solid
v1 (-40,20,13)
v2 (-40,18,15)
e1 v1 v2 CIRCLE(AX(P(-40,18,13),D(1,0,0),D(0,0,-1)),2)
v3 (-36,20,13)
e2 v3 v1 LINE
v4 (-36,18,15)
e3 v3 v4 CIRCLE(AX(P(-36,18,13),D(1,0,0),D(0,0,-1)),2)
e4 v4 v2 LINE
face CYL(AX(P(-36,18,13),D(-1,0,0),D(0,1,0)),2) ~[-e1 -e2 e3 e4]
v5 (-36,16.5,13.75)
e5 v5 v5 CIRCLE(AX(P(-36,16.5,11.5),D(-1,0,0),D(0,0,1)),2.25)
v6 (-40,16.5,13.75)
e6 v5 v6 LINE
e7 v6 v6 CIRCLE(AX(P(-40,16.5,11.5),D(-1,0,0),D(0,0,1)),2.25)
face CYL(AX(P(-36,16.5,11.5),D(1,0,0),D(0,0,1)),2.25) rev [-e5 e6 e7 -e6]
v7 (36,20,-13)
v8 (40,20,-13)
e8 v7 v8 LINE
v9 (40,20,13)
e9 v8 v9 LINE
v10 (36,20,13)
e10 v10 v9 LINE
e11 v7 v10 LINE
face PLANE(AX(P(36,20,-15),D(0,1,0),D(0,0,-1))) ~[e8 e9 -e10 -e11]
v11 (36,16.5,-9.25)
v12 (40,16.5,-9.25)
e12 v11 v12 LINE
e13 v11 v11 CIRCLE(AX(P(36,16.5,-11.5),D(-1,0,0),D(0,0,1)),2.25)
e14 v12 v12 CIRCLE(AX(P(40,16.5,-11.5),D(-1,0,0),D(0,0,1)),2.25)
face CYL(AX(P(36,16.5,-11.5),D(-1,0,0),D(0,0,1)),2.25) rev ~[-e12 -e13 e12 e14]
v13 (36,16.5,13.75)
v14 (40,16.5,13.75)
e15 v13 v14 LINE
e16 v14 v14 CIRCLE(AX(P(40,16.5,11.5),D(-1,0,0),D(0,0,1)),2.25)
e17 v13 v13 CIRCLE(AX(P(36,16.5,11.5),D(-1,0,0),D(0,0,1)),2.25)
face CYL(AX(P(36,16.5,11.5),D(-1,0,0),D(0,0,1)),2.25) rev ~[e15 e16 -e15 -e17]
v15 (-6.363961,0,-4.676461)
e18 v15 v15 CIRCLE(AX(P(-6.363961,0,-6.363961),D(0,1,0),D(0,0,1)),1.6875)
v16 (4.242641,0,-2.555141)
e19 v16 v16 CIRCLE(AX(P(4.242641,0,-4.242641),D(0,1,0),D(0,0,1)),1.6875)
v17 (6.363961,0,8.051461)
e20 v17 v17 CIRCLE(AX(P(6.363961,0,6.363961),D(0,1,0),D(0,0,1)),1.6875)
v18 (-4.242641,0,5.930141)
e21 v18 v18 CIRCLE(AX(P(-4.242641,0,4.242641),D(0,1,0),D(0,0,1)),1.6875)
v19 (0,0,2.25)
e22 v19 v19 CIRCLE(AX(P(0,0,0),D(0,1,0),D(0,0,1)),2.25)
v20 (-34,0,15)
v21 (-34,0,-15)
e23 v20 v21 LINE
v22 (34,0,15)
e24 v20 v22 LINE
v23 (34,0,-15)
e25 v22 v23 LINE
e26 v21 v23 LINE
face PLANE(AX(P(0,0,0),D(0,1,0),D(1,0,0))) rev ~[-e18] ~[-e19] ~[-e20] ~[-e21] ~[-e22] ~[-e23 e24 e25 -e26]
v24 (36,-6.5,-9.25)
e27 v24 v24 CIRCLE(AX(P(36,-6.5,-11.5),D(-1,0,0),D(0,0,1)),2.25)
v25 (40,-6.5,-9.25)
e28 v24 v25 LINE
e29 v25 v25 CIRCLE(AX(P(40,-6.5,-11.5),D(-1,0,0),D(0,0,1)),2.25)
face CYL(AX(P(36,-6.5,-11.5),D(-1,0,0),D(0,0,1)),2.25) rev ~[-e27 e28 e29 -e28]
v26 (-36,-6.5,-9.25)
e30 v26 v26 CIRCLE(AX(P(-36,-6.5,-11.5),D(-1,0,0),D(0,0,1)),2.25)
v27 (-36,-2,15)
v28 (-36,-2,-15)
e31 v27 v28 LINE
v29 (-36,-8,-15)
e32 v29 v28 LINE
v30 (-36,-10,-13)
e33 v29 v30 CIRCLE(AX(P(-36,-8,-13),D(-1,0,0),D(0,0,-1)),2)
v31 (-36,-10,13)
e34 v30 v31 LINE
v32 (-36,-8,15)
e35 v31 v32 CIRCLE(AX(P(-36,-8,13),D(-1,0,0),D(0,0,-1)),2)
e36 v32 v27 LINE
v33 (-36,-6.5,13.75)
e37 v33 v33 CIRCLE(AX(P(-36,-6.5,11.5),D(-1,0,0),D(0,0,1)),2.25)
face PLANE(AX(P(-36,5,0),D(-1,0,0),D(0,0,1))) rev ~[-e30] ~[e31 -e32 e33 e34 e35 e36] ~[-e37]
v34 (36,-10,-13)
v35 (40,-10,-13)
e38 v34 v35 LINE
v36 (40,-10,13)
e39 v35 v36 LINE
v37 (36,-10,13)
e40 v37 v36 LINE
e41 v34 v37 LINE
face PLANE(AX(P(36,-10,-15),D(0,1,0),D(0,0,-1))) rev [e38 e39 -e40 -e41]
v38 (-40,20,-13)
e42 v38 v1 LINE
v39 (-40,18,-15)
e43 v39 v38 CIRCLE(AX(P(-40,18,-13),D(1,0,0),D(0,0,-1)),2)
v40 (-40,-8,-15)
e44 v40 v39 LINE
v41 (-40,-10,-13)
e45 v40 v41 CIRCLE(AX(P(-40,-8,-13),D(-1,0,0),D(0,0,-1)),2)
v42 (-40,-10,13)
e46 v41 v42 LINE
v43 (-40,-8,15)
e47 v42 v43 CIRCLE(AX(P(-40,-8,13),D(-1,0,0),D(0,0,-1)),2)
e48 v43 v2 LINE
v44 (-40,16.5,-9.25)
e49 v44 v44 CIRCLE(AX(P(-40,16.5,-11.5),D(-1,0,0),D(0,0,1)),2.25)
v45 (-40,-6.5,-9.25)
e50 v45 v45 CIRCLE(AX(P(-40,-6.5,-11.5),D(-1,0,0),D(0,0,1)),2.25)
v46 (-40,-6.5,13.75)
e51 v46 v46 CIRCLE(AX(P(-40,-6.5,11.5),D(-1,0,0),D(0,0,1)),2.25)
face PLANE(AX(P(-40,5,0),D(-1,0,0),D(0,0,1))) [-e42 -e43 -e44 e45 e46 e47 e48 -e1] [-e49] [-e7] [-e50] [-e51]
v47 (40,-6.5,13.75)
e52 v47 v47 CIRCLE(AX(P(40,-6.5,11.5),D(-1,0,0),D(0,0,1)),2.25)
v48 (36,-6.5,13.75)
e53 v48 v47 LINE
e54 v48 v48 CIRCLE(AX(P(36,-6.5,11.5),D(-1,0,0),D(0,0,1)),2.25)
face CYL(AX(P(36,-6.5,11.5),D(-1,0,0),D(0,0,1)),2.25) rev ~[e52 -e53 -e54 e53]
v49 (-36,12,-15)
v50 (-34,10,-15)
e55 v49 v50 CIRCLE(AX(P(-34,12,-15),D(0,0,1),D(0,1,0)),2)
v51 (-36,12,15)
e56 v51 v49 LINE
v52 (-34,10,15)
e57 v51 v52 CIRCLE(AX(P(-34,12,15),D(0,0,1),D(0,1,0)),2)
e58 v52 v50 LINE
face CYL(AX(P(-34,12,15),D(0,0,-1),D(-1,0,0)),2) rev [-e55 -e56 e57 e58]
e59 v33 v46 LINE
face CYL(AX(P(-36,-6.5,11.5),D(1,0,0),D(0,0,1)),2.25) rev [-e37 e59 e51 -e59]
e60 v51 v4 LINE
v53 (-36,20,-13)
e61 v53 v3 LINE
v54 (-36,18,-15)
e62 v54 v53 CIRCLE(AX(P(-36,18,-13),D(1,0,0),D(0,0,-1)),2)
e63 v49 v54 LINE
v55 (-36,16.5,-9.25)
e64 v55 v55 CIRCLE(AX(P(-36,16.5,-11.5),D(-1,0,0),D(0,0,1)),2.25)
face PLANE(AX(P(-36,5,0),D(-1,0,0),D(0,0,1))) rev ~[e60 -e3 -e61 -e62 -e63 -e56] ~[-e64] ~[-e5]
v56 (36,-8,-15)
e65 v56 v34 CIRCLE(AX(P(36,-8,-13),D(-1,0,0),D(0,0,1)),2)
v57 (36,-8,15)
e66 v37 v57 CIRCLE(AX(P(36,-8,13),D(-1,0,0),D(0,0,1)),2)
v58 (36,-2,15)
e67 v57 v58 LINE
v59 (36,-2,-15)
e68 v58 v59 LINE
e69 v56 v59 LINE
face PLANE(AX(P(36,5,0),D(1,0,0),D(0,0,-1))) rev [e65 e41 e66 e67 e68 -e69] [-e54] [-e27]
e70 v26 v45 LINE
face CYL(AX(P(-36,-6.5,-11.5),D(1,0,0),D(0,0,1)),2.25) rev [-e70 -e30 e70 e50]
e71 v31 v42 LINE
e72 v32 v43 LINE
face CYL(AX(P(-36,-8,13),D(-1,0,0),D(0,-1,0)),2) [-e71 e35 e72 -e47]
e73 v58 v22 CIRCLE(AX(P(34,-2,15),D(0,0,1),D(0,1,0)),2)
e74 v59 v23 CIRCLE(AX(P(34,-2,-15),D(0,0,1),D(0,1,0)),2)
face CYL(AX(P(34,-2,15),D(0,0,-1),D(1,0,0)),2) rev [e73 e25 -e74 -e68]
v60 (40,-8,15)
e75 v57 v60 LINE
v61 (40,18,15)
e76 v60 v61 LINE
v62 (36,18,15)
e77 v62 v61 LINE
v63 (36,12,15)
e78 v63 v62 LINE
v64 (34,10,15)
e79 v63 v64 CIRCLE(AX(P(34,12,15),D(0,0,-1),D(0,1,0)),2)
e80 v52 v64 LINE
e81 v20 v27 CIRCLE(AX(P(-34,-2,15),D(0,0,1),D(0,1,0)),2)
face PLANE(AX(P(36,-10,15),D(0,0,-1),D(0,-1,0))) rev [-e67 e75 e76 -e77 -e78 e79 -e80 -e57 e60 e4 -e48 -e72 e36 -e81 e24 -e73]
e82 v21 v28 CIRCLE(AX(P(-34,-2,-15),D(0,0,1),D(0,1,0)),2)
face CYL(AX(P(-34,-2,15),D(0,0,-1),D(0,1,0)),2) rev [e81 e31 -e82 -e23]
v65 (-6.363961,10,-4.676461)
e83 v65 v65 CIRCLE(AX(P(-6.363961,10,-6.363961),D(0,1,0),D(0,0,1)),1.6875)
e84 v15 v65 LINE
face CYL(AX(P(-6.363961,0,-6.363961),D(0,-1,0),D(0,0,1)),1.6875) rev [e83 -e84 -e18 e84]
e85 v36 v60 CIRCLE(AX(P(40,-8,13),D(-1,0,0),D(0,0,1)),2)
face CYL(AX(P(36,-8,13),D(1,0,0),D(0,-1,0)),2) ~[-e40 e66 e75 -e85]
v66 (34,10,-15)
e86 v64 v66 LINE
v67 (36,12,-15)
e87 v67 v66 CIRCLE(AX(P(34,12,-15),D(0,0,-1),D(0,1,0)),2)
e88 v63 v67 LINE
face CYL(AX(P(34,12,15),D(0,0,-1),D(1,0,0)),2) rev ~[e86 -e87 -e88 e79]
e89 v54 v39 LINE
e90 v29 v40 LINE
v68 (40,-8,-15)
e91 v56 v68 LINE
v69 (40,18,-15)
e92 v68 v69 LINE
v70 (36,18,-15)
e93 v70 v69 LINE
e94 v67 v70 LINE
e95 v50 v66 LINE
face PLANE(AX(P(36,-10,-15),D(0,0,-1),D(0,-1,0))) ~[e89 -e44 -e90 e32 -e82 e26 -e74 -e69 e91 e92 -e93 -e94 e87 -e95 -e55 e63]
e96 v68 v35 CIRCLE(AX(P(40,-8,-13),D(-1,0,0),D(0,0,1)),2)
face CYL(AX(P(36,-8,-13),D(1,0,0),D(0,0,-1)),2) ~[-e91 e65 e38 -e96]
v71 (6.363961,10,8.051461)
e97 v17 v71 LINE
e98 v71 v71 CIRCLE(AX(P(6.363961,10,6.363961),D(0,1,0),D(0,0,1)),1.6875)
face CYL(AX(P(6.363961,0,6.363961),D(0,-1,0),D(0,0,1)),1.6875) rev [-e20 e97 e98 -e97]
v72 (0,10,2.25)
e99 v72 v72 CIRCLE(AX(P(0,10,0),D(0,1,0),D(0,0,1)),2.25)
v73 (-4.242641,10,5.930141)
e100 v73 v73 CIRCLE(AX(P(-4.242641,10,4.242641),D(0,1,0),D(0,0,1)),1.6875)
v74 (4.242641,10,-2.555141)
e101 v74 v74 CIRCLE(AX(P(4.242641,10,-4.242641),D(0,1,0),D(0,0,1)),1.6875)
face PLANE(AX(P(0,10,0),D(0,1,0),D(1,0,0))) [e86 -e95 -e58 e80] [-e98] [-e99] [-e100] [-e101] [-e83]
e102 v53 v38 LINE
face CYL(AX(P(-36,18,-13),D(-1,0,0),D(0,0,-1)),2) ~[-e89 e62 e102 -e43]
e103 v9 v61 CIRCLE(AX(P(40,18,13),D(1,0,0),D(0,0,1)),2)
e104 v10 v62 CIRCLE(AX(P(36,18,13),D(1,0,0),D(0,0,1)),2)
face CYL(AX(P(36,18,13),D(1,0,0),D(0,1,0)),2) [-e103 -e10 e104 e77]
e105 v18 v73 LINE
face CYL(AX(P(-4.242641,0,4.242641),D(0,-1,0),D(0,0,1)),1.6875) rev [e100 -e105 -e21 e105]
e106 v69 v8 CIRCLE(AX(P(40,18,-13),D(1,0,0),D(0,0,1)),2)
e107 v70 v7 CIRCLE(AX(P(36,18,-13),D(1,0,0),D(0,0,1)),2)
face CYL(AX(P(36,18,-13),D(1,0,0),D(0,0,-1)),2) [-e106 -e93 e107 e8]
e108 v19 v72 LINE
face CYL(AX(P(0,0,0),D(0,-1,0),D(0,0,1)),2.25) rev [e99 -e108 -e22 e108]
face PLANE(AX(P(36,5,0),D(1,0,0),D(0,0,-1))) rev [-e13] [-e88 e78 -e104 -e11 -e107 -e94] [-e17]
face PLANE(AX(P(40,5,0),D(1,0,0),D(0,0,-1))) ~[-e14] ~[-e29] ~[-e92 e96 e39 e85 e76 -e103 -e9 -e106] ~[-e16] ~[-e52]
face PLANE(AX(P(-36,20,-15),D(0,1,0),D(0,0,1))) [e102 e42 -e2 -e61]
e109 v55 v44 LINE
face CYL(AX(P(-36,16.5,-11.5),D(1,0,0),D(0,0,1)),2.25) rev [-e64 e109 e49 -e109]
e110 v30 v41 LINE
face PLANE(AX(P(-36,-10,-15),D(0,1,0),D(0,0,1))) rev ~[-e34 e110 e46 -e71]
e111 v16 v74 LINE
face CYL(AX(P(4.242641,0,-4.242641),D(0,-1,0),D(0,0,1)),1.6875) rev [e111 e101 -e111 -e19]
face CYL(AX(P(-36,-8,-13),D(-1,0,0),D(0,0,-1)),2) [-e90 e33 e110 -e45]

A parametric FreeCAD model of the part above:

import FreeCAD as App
import Part
import Sketcher
from FreeCAD import Vector
Q = App.Units.Quantity


def edges_at(feature, points):
    """Names of the edges that pass closest to the given points."""
    edges = feature.Shape.Edges
    near = lambda p: min(range(len(edges)), key=lambda i: edges[i].distToShape(Part.Vertex(*p))[0])
    return sorted({f"Edge{near(p) + 1}" for p in points})


def add_polygon(sketch, points):
    """Adds a closed chain of lines whose ends are joined by coincident constraints."""
    first, n = sketch.GeometryCount, len(points)
    for a, b in zip(points, points[1:] + points[:1]):
        sketch.addGeometry(Part.LineSegment(App.Vector(*a, 0), App.Vector(*b, 0)), False)
    for i in range(n):
        sketch.addConstraint(Sketcher.Constraint("Coincident", first + i, 2, first + (i + 1) % n, 1))

doc = App.newDocument("Part")
body = doc.addObject("PartDesign::Body", "Body")

# Sketch on XZ plane
sketch1 = body.newObject("Sketcher::SketchObject", "Sketch")
sketch1.AttachmentSupport = (doc.getObject("XZ_Plane"), [""])
sketch1.MapMode = "FlatFace"
add_polygon(sketch1, [(-36, -15), (-36, 15), (36, 15), (36, -15)])  # lines 0-3
sketch1.addGeometry(Part.Circle(Vector(-4.2, 4.2, 0), Vector(0, 0, 1), 1.7), False)  # 4
sketch1.addGeometry(Part.Circle(Vector(6.4, 6.4, 0), Vector(0, 0, 1), 1.7), False)  # 5
sketch1.addGeometry(Part.Circle(Vector(-6.4, -6.4, 0), Vector(0, 0, 1), 1.7), False)  # 6
sketch1.addGeometry(Part.Circle(Vector(0, 0, 0), Vector(0, 0, 1), 2.2), False)  # 7
sketch1.addGeometry(Part.Circle(Vector(4.2, -4.2, 0), Vector(0, 0, 1), 1.7), False)  # 8
sketch1.addConstraint([
    Sketcher.Constraint("Vertical", 0),
    Sketcher.Constraint("Horizontal", 1),
    Sketcher.Constraint("Vertical", 2),
    Sketcher.Constraint("Horizontal", 3),
    Sketcher.Constraint("Coincident", 7, 3, -1, 1),
    Sketcher.Constraint("Equal", 4, 5),
    Sketcher.Constraint("Equal", 5, 6),
    Sketcher.Constraint("Equal", 6, 8),
    Sketcher.Constraint("Symmetric", 5, 3, 6, 3, -1, 1),
    Sketcher.Constraint("Symmetric", 4, 3, 8, 3, -1, 1),
    Sketcher.Constraint("Symmetric", 0, 2, 2, 2, -1, 1),
    Sketcher.Constraint("Diameter", 7, Q("4.5 mm")),
    Sketcher.Constraint("DistanceX", 1, 1, 1, 2, Q("72 mm")),
    Sketcher.Constraint("DistanceY", 0, 1, 0, 2, Q("30 mm")),
    Sketcher.Constraint("Diameter", 4, Q("3.375 mm")),
    Sketcher.Constraint("DistanceX", 4, 3, 5, 3, Q("10.606602 mm")),
    Sketcher.Constraint("DistanceY", 6, 3, 4, 3, Q("10.606602 mm")),
    Sketcher.Constraint("DistanceX", 4, 3, -1, 1, Q("4.242641 mm")),
    Sketcher.Constraint("DistanceY", -1, 1, 4, 3, Q("4.242641 mm")),
])
pad1 = body.newObject("PartDesign::Pad", "Pad")
pad1.Profile = sketch1
pad1.Length = 10
pad1.Reversed = True

# Sketch on YZ plane
sketch2 = body.newObject("Sketcher::SketchObject", "Sketch001")
sketch2.AttachmentSupport = (doc.getObject("YZ_Plane"), [""])
sketch2.MapMode = "FlatFace"
sketch2.AttachmentOffset = App.Placement(Vector(0, 0, -36), App.Rotation())
add_polygon(sketch2, [(20, -15), (-10, -15), (-10, 15), (20, 15)])  # lines 0-3
sketch2.addGeometry(Part.Circle(Vector(-6.5, -11.5, 0), Vector(0, 0, 1), 2.2), False)  # 4
sketch2.addGeometry(Part.Circle(Vector(-6.5, 11.5, 0), Vector(0, 0, 1), 2.2), False)  # 5
sketch2.addGeometry(Part.Circle(Vector(16.5, -11.5, 0), Vector(0, 0, 1), 2.2), False)  # 6
sketch2.addGeometry(Part.Circle(Vector(16.5, 11.5, 0), Vector(0, 0, 1), 2.2), False)  # 7
sketch2.addConstraint([
    Sketcher.Constraint("Horizontal", 0),
    Sketcher.Constraint("Vertical", 1),
    Sketcher.Constraint("Horizontal", 2),
    Sketcher.Constraint("Vertical", 3),
    Sketcher.Constraint("Equal", 4, 5),
    Sketcher.Constraint("Equal", 5, 6),
    Sketcher.Constraint("Equal", 6, 7),
    Sketcher.Constraint("Symmetric", 4, 3, 5, 3, -1),
    Sketcher.Constraint("Symmetric", 6, 3, 7, 3, -1),
    Sketcher.Constraint("Horizontal", 4, 3, 6, 3),
    Sketcher.Constraint("Equal", 2, 1),
    Sketcher.Constraint("Diameter", 4, Q("4.5 mm")),
    Sketcher.Constraint("DistanceX", 0, 2, 0, 1, Q("30 mm")),
    Sketcher.Constraint("DistanceX", 0, 2, -1, 1, Q("10 mm")),
    Sketcher.Constraint("DistanceY", 0, 2, -1, 1, Q("15 mm")),
    Sketcher.Constraint("DistanceY", 4, 3, 5, 3, Q("23 mm")),
    Sketcher.Constraint("DistanceX", 4, 3, 6, 3, Q("23 mm")),
    Sketcher.Constraint("DistanceX", 4, 3, -1, 1, Q("6.5 mm")),
])
pad2 = body.newObject("PartDesign::Pad", "Pad001")
pad2.Profile = sketch2
pad2.Length = 4
pad2.Reversed = True
doc.recompute()

mirrored = body.newObject("PartDesign::Mirrored", "Mirrored")
mirrored.Originals = [pad2]
mirrored.MirrorPlane = (doc.getObject("YZ_Plane"), [""])
body.Tip = mirrored
doc.recompute()

fillet = body.newObject("PartDesign::Fillet", "Fillet")
fillet.Base = (mirrored, edges_at(mirrored, [
    (-36, 10, 0),
    (-36, 0, 0),
    (36, 0, 0),
    (36, 10, 0),
]))
fillet.Radius = 2
doc.recompute()

fillet2 = body.newObject("PartDesign::Fillet", "Fillet001")
fillet2.Base = (fillet, edges_at(fillet, [
    (-38, 20, 15),
    (-38, 20, -15),
    (-38, -10, -15),
    (-38, -10, 15),
    (38, 20, -15),
    (38, 20, 15),
    (38, -10, 15),
    (38, -10, -15),
]))
fillet2.Radius = 2

doc.recompute()
